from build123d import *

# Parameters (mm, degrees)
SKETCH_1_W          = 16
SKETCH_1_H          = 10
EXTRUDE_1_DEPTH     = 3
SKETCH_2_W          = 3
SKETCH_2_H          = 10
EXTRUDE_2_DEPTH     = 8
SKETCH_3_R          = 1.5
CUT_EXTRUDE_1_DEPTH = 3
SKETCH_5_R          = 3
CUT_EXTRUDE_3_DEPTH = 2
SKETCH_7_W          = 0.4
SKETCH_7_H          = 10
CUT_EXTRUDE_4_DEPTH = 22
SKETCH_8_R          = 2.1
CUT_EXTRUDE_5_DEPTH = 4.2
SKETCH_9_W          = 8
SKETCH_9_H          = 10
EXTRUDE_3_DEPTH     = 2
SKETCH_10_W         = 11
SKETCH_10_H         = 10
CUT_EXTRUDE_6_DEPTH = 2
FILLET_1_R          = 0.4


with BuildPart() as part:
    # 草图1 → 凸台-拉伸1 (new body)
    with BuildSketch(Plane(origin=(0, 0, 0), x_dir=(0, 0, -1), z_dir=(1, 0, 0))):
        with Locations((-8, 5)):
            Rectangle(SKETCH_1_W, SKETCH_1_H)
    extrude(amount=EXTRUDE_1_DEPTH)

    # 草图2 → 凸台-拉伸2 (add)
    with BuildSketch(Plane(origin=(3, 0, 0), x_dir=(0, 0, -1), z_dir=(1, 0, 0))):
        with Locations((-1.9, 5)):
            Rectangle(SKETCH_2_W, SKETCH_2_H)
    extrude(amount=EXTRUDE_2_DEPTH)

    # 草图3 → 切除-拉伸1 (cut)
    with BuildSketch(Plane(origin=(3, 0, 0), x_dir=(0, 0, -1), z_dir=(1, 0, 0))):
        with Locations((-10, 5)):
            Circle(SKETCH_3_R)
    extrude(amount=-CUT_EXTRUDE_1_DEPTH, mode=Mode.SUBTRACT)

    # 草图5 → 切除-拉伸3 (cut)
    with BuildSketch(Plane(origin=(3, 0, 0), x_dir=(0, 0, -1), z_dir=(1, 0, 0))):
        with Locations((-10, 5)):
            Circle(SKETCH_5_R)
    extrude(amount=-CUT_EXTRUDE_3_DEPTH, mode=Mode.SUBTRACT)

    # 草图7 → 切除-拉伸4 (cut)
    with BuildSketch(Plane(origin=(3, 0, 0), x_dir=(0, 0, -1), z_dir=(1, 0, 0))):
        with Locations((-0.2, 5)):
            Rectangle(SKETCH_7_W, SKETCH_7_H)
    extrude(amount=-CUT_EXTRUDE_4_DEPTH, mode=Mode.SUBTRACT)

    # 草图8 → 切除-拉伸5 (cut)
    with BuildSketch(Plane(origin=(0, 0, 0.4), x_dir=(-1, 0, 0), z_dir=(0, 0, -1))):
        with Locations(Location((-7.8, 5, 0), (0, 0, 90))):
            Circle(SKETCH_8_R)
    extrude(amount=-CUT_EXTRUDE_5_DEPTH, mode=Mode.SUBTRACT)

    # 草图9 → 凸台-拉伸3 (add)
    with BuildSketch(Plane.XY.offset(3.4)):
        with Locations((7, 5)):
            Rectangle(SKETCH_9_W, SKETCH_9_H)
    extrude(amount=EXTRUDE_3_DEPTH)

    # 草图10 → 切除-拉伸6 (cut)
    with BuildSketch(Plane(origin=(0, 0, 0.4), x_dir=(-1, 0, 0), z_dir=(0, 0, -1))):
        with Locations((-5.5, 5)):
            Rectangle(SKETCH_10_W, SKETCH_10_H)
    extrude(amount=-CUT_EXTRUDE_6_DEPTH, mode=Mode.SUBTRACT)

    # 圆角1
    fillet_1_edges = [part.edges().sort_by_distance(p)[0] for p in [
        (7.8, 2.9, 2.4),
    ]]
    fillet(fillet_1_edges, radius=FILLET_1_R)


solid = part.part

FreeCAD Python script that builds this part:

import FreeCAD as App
import Part
import Sketcher

V = App.Vector


def edges_at(feature, points):
    """Names of the edges that pass closest to the given points."""
    edges = feature.Shape.Edges
    near = lambda p: min(range(len(edges)), key=lambda i: edges[i].distToShape(Part.Vertex(*p))[0])
    return sorted({f"Edge{near(p) + 1}" for p in points})

doc = App.newDocument("Part")
body = doc.addObject("PartDesign::Body", "Body")

# Sketch on YZ plane
sketch1 = body.newObject("Sketcher::SketchObject", "Sketch")
sketch1.AttachmentSupport = (doc.getObject("YZ_Plane"), [""])
sketch1.MapMode = "FlatFace"
sketch1.addGeometry(Part.LineSegment(V(10, 16, 0), V(0, 16, 0)), False)
sketch1.addGeometry(Part.LineSegment(V(0, 16, 0), V(0, 0, 0)), False)
sketch1.addGeometry(Part.LineSegment(V(0, 0, 0), V(10, 0, 0)), False)
sketch1.addGeometry(Part.LineSegment(V(10, 0, 0), V(10, 16, 0)), False)
sketch1.addConstraint(Sketcher.Constraint("Coincident", 0, 2, 1, 1))
sketch1.addConstraint(Sketcher.Constraint("Coincident", 1, 2, 2, 1))
sketch1.addConstraint(Sketcher.Constraint("Coincident", 2, 2, 3, 1))
sketch1.addConstraint(Sketcher.Constraint("Coincident", 3, 2, 0, 1))
sketch1.addConstraint(Sketcher.Constraint("Horizontal", 0))
sketch1.addConstraint(Sketcher.Constraint("Vertical", 1))
sketch1.addConstraint(Sketcher.Constraint("Horizontal", 2))
sketch1.addConstraint(Sketcher.Constraint("Vertical", 3))
sketch1.addConstraint(Sketcher.Constraint("Coincident", 1, 2, -1, 1))
sketch1.addConstraint(Sketcher.Constraint("DistanceX", 0, 2, 0, 1, 10.0))
sketch1.addConstraint(Sketcher.Constraint("DistanceY", 1, 2, 1, 1, 16.0))
pad1 = body.newObject("PartDesign::Pad", "Pad")
pad1.Profile = sketch1
pad1.Length = 3

# Sketch on YZ plane
sketch2 = body.newObject("Sketcher::SketchObject", "Sketch001")
sketch2.AttachmentSupport = (doc.getObject("YZ_Plane"), [""])
sketch2.MapMode = "FlatFace"
sketch2.AttachmentOffset = App.Placement(V(0, 0, 3), App.Rotation())
sketch2.addGeometry(Part.LineSegment(V(10, 3.4, 0), V(0, 3.4, 0)), False)
sketch2.addGeometry(Part.LineSegment(V(0, 3.4, 0), V(0, 0.4, 0)), False)
sketch2.addGeometry(Part.LineSegment(V(0, 0.4, 0), V(10, 0.4, 0)), False)
sketch2.addGeometry(Part.LineSegment(V(10, 0.4, 0), V(10, 3.4, 0)), False)
sketch2.addConstraint(Sketcher.Constraint("Coincident", 0, 2, 1, 1))
sketch2.addConstraint(Sketcher.Constraint("Coincident", 1, 2, 2, 1))
sketch2.addConstraint(Sketcher.Constraint("Coincident", 2, 2, 3, 1))
sketch2.addConstraint(Sketcher.Constraint("Coincident", 3, 2, 0, 1))
sketch2.addConstraint(Sketcher.Constraint("Horizontal", 0))
sketch2.addConstraint(Sketcher.Constraint("Vertical", 1))
sketch2.addConstraint(Sketcher.Constraint("Horizontal", 2))
sketch2.addConstraint(Sketcher.Constraint("Vertical", 3))
sketch2.addConstraint(Sketcher.Constraint("PointOnObject", 0, 2, -2))
sketch2.addConstraint(Sketcher.Constraint("DistanceX", 0, 2, 0, 1, 10.0))
sketch2.addConstraint(Sketcher.Constraint("DistanceY", 1, 2, 1, 1, 3.0))
sketch2.addConstraint(Sketcher.Constraint("DistanceY", -1, 1, 0, 2, 3.4))
pad2 = body.newObject("PartDesign::Pad", "Pad001")
pad2.Profile = sketch2
pad2.Length = 8

# Sketch on YZ plane
sketch3 = body.newObject("Sketcher::SketchObject", "Sketch002")
sketch3.AttachmentSupport = (doc.getObject("YZ_Plane"), [""])
sketch3.MapMode = "FlatFace"
sketch3.AttachmentOffset = App.Placement(V(0, 0, 3), App.Rotation())
sketch3.addGeometry(Part.Circle(V(5, 10, 0), V(0, 0, 1), 1.5), False)
sketch3.addConstraint(Sketcher.Constraint("Diameter", 0, 3.0))
sketch3.addConstraint(Sketcher.Constraint("DistanceX", -1, 1, 0, 3, 5.0))
sketch3.addConstraint(Sketcher.Constraint("DistanceY", -1, 1, 0, 3, 10.0))
pocket1 = body.newObject("PartDesign::Pocket", "Pocket")
pocket1.Profile = sketch3
pocket1.Length = 3

# Sketch on YZ plane
sketch4 = body.newObject("Sketcher::SketchObject", "Sketch003")
sketch4.AttachmentSupport = (doc.getObject("YZ_Plane"), [""])
sketch4.MapMode = "FlatFace"
sketch4.AttachmentOffset = App.Placement(V(0, 0, 3), App.Rotation())
sketch4.addGeometry(Part.Circle(V(5, 10, 0), V(0, 0, 1), 3), False)
sketch4.addConstraint(Sketcher.Constraint("Diameter", 0, 6.0))
sketch4.addConstraint(Sketcher.Constraint("DistanceX", -1, 1, 0, 3, 5.0))
sketch4.addConstraint(Sketcher.Constraint("DistanceY", -1, 1, 0, 3, 10.0))
pocket2 = body.newObject("PartDesign::Pocket", "Pocket001")
pocket2.Profile = sketch4
pocket2.Length = 2

# Sketch on YZ plane
sketch5 = body.newObject("Sketcher::SketchObject", "Sketch004")
sketch5.AttachmentSupport = (doc.getObject("YZ_Plane"), [""])
sketch5.MapMode = "FlatFace"
sketch5.AttachmentOffset = App.Placement(V(0, 0, 3), App.Rotation())
sketch5.addGeometry(Part.LineSegment(V(10, 0.4, 0), V(0, 0.4, 0)), False)
sketch5.addGeometry(Part.LineSegment(V(0, 0.4, 0), V(0, 0, 0)), False)
sketch5.addGeometry(Part.LineSegment(V(0, 0, 0), V(10, 0, 0)), False)
sketch5.addGeometry(Part.LineSegment(V(10, 0, 0), V(10, 0.4, 0)), False)
sketch5.addConstraint(Sketcher.Constraint("Coincident", 0, 2, 1, 1))
sketch5.addConstraint(Sketcher.Constraint("Coincident", 1, 2, 2, 1))
sketch5.addConstraint(Sketcher.Constraint("Coincident", 2, 2, 3, 1))
sketch5.addConstraint(Sketcher.Constraint("Coincident", 3, 2, 0, 1))
sketch5.addConstraint(Sketcher.Constraint("Horizontal", 0))
sketch5.addConstraint(Sketcher.Constraint("Vertical", 1))
sketch5.addConstraint(Sketcher.Constraint("Horizontal", 2))
sketch5.addConstraint(Sketcher.Constraint("Vertical", 3))
sketch5.addConstraint(Sketcher.Constraint("Coincident", 1, 2, -1, 1))
sketch5.addConstraint(Sketcher.Constraint("DistanceX", 0, 2, 0, 1, 10.0))
sketch5.addConstraint(Sketcher.Constraint("DistanceY", 1, 2, 1, 1, 0.4))
pocket3 = body.newObject("PartDesign::Pocket", "Pocket002")
pocket3.Profile = sketch5
pocket3.Length = 22

# Sketch on XY plane
sketch6 = body.newObject("Sketcher::SketchObject", "Sketch005")
sketch6.AttachmentSupport = (doc.getObject("XY_Plane"), [""])
sketch6.MapMode = "FlatFace"
sketch6.AttachmentOffset = App.Placement(V(0, 0, 0.4), App.Rotation())
sketch6.addGeometry(Part.Circle(V(7.8, 5, 0), V(0, 0, 1), 2.1), False)
sketch6.addConstraint(Sketcher.Constraint("Diameter", 0, 4.2))
sketch6.addConstraint(Sketcher.Constraint("DistanceY", -1, 1, 0, 3, 5.0))
sketch6.addConstraint(Sketcher.Constraint("DistanceX", -1, 1, 0, 3, 7.8))
pocket4 = body.newObject("PartDesign::Pocket", "Pocket003")
pocket4.Profile = sketch6
pocket4.Length = 4.2
pocket4.Reversed = True

# Sketch on XY plane
sketch7 = body.newObject("Sketcher::SketchObject", "Sketch006")
sketch7.AttachmentSupport = (doc.getObject("XY_Plane"), [""])
sketch7.MapMode = "FlatFace"
sketch7.AttachmentOffset = App.Placement(V(0, 0, 3.4), App.Rotation())
sketch7.addGeometry(Part.LineSegment(V(3, 10, 0), V(3, 0, 0)), False)
sketch7.addGeometry(Part.LineSegment(V(3, 0, 0), V(11, 0, 0)), False)
sketch7.addGeometry(Part.LineSegment(V(11, 0, 0), V(11, 10, 0)), False)
sketch7.addGeometry(Part.LineSegment(V(11, 10, 0), V(3, 10, 0)), False)
sketch7.addConstraint(Sketcher.Constraint("Coincident", 0, 2, 1, 1))
sketch7.addConstraint(Sketcher.Constraint("Coincident", 1, 2, 2, 1))
sketch7.addConstraint(Sketcher.Constraint("Coincident", 2, 2, 3, 1))
sketch7.addConstraint(Sketcher.Constraint("Coincident", 3, 2, 0, 1))
sketch7.addConstraint(Sketcher.Constraint("Vertical", 0))
sketch7.addConstraint(Sketcher.Constraint("Horizontal", 1))
sketch7.addConstraint(Sketcher.Constraint("Vertical", 2))
sketch7.addConstraint(Sketcher.Constraint("Horizontal", 3))
sketch7.addConstraint(Sketcher.Constraint("PointOnObject", 0, 2, -1))
sketch7.addConstraint(Sketcher.Constraint("DistanceX", 1, 1, 1, 2, 8.0))
sketch7.addConstraint(Sketcher.Constraint("DistanceY", 0, 2, 0, 1, 10.0))
sketch7.addConstraint(Sketcher.Constraint("DistanceX", -1, 1, 0, 2, 3.0))
pad3 = body.newObject("PartDesign::Pad", "Pad002")
pad3.Profile = sketch7
pad3.Length = 2

# Sketch on XY plane
sketch8 = body.newObject("Sketcher::SketchObject", "Sketch007")
sketch8.AttachmentSupport = (doc.getObject("XY_Plane"), [""])
sketch8.MapMode = "FlatFace"
sketch8.AttachmentOffset = App.Placement(V(0, 0, 0.4), App.Rotation())
sketch8.addGeometry(Part.LineSegment(V(11, 10, 0), V(11, 0, 0)), False)
sketch8.addGeometry(Part.LineSegment(V(11, 0, 0), V(0, 0, 0)), False)
sketch8.addGeometry(Part.LineSegment(V(0, 0, 0), V(0, 10, 0)), False)
sketch8.addGeometry(Part.LineSegment(V(0, 10, 0), V(11, 10, 0)), False)
sketch8.addConstraint(Sketcher.Constraint("Coincident", 0, 2, 1, 1))
sketch8.addConstraint(Sketcher.Constraint("Coincident", 1, 2, 2, 1))
sketch8.addConstraint(Sketcher.Constraint("Coincident", 2, 2, 3, 1))
sketch8.addConstraint(Sketcher.Constraint("Coincident", 3, 2, 0, 1))
sketch8.addConstraint(Sketcher.Constraint("Vertical", 0))
sketch8.addConstraint(Sketcher.Constraint("Horizontal", 1))
sketch8.addConstraint(Sketcher.Constraint("Vertical", 2))
sketch8.addConstraint(Sketcher.Constraint("Horizontal", 3))
sketch8.addConstraint(Sketcher.Constraint("Coincident", 1, 2, -1, 1))
sketch8.addConstraint(Sketcher.Constraint("DistanceX", 1, 2, 1, 1, 11.0))
sketch8.addConstraint(Sketcher.Constraint("DistanceY", 0, 2, 0, 1, 10.0))
pocket5 = body.newObject("PartDesign::Pocket", "Pocket004")
pocket5.Profile = sketch8
pocket5.Length = 2
pocket5.Reversed = True
doc.recompute()

fillet = body.newObject("PartDesign::Fillet", "Fillet")
fillet.Base = (pocket5, edges_at(pocket5, [(7.8, 2.9, 2.4)]))
fillet.Radius = 0.4

doc.recompute()
